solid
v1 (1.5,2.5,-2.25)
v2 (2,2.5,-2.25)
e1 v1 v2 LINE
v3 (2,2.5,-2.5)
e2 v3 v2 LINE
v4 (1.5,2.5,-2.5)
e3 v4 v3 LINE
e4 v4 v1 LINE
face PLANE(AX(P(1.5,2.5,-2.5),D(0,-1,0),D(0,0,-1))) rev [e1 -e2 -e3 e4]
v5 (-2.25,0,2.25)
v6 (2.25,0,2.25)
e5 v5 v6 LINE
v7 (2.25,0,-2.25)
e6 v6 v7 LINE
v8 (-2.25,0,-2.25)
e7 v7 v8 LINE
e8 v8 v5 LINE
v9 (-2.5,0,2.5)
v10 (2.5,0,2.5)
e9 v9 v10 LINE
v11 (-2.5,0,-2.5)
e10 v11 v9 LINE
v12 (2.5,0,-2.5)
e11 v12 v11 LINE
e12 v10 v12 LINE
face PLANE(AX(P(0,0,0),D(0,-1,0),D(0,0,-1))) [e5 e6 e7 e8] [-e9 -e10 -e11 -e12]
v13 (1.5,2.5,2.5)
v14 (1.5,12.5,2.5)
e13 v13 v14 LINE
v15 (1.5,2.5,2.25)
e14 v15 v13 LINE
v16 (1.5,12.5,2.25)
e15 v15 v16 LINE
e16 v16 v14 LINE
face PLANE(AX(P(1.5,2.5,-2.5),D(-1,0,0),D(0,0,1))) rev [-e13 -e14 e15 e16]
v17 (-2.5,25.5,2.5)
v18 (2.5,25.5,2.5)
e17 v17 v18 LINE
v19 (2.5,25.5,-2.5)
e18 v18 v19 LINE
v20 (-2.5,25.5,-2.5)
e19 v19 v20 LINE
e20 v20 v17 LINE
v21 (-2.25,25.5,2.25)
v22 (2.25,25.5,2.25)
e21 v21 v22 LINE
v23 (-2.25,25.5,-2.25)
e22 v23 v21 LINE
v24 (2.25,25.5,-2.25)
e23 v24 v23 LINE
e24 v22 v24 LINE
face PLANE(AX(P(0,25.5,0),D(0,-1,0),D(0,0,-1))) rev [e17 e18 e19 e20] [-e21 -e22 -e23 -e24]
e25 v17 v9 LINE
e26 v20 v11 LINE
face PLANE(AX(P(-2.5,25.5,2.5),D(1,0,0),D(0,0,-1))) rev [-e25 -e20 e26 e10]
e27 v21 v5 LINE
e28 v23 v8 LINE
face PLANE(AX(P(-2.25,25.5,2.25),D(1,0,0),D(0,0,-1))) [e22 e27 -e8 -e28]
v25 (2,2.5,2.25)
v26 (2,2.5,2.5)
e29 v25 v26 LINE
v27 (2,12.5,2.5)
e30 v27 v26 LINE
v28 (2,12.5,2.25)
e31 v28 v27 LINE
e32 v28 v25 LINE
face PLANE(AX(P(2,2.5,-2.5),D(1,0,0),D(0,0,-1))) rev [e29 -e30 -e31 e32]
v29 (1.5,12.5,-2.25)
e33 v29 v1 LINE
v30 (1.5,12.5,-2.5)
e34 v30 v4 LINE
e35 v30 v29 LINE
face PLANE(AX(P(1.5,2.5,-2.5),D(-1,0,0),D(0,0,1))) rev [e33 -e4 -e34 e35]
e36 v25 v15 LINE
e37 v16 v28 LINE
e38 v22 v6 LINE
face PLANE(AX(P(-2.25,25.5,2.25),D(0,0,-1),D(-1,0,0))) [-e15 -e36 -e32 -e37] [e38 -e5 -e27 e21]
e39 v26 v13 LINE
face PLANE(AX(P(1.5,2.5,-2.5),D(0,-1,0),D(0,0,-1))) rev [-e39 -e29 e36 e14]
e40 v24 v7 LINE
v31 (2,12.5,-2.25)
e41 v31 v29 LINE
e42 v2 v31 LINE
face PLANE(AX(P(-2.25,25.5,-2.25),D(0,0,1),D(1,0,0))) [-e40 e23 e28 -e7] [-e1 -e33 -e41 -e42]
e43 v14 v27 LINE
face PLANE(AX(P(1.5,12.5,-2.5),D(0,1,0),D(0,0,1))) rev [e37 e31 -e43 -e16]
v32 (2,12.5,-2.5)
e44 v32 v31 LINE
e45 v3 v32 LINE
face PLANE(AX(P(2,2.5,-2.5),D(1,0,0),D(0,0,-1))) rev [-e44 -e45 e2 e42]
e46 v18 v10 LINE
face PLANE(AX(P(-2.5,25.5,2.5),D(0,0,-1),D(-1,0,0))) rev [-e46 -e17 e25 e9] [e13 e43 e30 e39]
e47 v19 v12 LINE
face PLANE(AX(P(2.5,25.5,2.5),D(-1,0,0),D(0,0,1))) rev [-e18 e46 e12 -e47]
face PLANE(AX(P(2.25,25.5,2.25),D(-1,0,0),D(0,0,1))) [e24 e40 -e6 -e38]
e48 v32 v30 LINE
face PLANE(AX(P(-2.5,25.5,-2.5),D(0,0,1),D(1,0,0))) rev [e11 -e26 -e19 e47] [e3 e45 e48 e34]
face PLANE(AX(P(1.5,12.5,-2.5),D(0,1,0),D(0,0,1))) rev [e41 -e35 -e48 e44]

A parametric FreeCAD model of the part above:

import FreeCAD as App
import Part
import Sketcher

V = App.Vector
Q = App.Units.Quantity

doc = App.newDocument("Part")
body = doc.addObject("PartDesign::Body", "Body")

# Sketch on XZ plane
sketch1 = doc.addObject("Sketcher::SketchObject", "Sketch")
body.addObject(sketch1)
sketch1.AttachmentSupport = (doc.XZ_Plane, [""])
sketch1.MapMode = "FlatFace"
sketch1.addGeometry(Part.LineSegment(V(-2.5, -2.5, 0), V(-2.5, 2.5, 0)), False)
sketch1.addGeometry(Part.LineSegment(V(-2.5, 2.5, 0), V(2.5, 2.5, 0)), False)
sketch1.addGeometry(Part.LineSegment(V(2.5, 2.5, 0), V(2.5, -2.5, 0)), False)
sketch1.addGeometry(Part.LineSegment(V(2.5, -2.5, 0), V(-2.5, -2.5, 0)), False)
sketch1.addGeometry(Part.LineSegment(V(2.2, 2.2, 0), V(-2.2, 2.2, 0)), False)
sketch1.addGeometry(Part.LineSegment(V(-2.2, 2.2, 0), V(-2.2, -2.2, 0)), False)
sketch1.addGeometry(Part.LineSegment(V(-2.2, -2.2, 0), V(2.2, -2.2, 0)), False)
sketch1.addGeometry(Part.LineSegment(V(2.2, -2.2, 0), V(2.2, 2.2, 0)), False)
sketch1.addConstraint(Sketcher.Constraint("Coincident", 0, 2, 1, 1))
sketch1.addConstraint(Sketcher.Constraint("Coincident", 1, 2, 2, 1))
sketch1.addConstraint(Sketcher.Constraint("Coincident", 2, 2, 3, 1))
sketch1.addConstraint(Sketcher.Constraint("Coincident", 3, 2, 0, 1))
sketch1.addConstraint(Sketcher.Constraint("Coincident", 4, 2, 5, 1))
sketch1.addConstraint(Sketcher.Constraint("Coincident", 5, 2, 6, 1))
sketch1.addConstraint(Sketcher.Constraint("Coincident", 6, 2, 7, 1))
sketch1.addConstraint(Sketcher.Constraint("Coincident", 7, 2, 4, 1))
sketch1.addConstraint(Sketcher.Constraint("Vertical", 0))
sketch1.addConstraint(Sketcher.Constraint("Horizontal", 1))
sketch1.addConstraint(Sketcher.Constraint("Vertical", 2))
sketch1.addConstraint(Sketcher.Constraint("Horizontal", 3))
sketch1.addConstraint(Sketcher.Constraint("Horizontal", 4))
sketch1.addConstraint(Sketcher.Constraint("Vertical", 5))
sketch1.addConstraint(Sketcher.Constraint("Horizontal", 6))
sketch1.addConstraint(Sketcher.Constraint("Vertical", 7))
sketch1.addConstraint(Sketcher.Constraint("Symmetric", 0, 2, 2, 2, -1, 1))
sketch1.addConstraint(Sketcher.Constraint("Symmetric", 4, 2, 6, 2, -1, 1))
sketch1.addConstraint(Sketcher.Constraint("Equal", 3, 0))
sketch1.addConstraint(Sketcher.Constraint("Equal", 6, 5))
sketch1.addConstraint(Sketcher.Constraint("DistanceX", 1, 1, 1, 2, Q("5 mm")))
sketch1.addConstraint(Sketcher.Constraint("DistanceX", 4, 2, 4, 1, Q("4.5 mm")))
pad1 = doc.addObject("PartDesign::Pad", "Pad")
body.addObject(pad1)
pad1.Profile = sketch1
pad1.Length = 25.5
pad1.Reversed = True

# Sketch on XY plane
sketch2 = doc.addObject("Sketcher::SketchObject", "Sketch001")
body.addObject(sketch2)
sketch2.AttachmentSupport = (doc.XY_Plane, [""])
sketch2.MapMode = "FlatFace"
sketch2.AttachmentOffset = App.Placement(V(0, 0, 2.5), App.Rotation())
sketch2.addGeometry(Part.LineSegment(V(1.5, 12.5, 0), V(1.5, 2.5, 0)), False)
sketch2.addGeometry(Part.LineSegment(V(1.5, 2.5, 0), V(2, 2.5, 0)), False)
sketch2.addGeometry(Part.LineSegment(V(2, 2.5, 0), V(2, 12.5, 0)), False)
sketch2.addGeometry(Part.LineSegment(V(2, 12.5, 0), V(1.5, 12.5, 0)), False)
sketch2.addConstraint(Sketcher.Constraint("Coincident", 0, 2, 1, 1))
sketch2.addConstraint(Sketcher.Constraint("Coincident", 1, 2, 2, 1))
sketch2.addConstraint(Sketcher.Constraint("Coincident", 2, 2, 3, 1))
sketch2.addConstraint(Sketcher.Constraint("Coincident", 3, 2, 0, 1))
sketch2.addConstraint(Sketcher.Constraint("Vertical", 0))
sketch2.addConstraint(Sketcher.Constraint("Horizontal", 1))
sketch2.addConstraint(Sketcher.Constraint("Vertical", 2))
sketch2.addConstraint(Sketcher.Constraint("Horizontal", 3))
sketch2.addConstraint(Sketcher.Constraint("DistanceY", 0, 2, 0, 1, Q("10 mm")))
sketch2.addConstraint(Sketcher.Constraint("DistanceX", 1, 1, 1, 2, Q("0.5 mm")))
sketch2.addConstraint(Sketcher.Constraint("DistanceX", -1, 1, 1, 2, Q("2 mm")))
sketch2.addConstraint(Sketcher.Constraint("DistanceY", -1, 1, 0, 2, Q("2.5 mm")))
pocket1 = doc.addObject("PartDesign::Pocket", "Pocket")
body.addObject(pocket1)
pocket1.Profile = sketch2
pocket1.Type = "ThroughAll"
pocket1.Midplane = True

doc.recompute()
